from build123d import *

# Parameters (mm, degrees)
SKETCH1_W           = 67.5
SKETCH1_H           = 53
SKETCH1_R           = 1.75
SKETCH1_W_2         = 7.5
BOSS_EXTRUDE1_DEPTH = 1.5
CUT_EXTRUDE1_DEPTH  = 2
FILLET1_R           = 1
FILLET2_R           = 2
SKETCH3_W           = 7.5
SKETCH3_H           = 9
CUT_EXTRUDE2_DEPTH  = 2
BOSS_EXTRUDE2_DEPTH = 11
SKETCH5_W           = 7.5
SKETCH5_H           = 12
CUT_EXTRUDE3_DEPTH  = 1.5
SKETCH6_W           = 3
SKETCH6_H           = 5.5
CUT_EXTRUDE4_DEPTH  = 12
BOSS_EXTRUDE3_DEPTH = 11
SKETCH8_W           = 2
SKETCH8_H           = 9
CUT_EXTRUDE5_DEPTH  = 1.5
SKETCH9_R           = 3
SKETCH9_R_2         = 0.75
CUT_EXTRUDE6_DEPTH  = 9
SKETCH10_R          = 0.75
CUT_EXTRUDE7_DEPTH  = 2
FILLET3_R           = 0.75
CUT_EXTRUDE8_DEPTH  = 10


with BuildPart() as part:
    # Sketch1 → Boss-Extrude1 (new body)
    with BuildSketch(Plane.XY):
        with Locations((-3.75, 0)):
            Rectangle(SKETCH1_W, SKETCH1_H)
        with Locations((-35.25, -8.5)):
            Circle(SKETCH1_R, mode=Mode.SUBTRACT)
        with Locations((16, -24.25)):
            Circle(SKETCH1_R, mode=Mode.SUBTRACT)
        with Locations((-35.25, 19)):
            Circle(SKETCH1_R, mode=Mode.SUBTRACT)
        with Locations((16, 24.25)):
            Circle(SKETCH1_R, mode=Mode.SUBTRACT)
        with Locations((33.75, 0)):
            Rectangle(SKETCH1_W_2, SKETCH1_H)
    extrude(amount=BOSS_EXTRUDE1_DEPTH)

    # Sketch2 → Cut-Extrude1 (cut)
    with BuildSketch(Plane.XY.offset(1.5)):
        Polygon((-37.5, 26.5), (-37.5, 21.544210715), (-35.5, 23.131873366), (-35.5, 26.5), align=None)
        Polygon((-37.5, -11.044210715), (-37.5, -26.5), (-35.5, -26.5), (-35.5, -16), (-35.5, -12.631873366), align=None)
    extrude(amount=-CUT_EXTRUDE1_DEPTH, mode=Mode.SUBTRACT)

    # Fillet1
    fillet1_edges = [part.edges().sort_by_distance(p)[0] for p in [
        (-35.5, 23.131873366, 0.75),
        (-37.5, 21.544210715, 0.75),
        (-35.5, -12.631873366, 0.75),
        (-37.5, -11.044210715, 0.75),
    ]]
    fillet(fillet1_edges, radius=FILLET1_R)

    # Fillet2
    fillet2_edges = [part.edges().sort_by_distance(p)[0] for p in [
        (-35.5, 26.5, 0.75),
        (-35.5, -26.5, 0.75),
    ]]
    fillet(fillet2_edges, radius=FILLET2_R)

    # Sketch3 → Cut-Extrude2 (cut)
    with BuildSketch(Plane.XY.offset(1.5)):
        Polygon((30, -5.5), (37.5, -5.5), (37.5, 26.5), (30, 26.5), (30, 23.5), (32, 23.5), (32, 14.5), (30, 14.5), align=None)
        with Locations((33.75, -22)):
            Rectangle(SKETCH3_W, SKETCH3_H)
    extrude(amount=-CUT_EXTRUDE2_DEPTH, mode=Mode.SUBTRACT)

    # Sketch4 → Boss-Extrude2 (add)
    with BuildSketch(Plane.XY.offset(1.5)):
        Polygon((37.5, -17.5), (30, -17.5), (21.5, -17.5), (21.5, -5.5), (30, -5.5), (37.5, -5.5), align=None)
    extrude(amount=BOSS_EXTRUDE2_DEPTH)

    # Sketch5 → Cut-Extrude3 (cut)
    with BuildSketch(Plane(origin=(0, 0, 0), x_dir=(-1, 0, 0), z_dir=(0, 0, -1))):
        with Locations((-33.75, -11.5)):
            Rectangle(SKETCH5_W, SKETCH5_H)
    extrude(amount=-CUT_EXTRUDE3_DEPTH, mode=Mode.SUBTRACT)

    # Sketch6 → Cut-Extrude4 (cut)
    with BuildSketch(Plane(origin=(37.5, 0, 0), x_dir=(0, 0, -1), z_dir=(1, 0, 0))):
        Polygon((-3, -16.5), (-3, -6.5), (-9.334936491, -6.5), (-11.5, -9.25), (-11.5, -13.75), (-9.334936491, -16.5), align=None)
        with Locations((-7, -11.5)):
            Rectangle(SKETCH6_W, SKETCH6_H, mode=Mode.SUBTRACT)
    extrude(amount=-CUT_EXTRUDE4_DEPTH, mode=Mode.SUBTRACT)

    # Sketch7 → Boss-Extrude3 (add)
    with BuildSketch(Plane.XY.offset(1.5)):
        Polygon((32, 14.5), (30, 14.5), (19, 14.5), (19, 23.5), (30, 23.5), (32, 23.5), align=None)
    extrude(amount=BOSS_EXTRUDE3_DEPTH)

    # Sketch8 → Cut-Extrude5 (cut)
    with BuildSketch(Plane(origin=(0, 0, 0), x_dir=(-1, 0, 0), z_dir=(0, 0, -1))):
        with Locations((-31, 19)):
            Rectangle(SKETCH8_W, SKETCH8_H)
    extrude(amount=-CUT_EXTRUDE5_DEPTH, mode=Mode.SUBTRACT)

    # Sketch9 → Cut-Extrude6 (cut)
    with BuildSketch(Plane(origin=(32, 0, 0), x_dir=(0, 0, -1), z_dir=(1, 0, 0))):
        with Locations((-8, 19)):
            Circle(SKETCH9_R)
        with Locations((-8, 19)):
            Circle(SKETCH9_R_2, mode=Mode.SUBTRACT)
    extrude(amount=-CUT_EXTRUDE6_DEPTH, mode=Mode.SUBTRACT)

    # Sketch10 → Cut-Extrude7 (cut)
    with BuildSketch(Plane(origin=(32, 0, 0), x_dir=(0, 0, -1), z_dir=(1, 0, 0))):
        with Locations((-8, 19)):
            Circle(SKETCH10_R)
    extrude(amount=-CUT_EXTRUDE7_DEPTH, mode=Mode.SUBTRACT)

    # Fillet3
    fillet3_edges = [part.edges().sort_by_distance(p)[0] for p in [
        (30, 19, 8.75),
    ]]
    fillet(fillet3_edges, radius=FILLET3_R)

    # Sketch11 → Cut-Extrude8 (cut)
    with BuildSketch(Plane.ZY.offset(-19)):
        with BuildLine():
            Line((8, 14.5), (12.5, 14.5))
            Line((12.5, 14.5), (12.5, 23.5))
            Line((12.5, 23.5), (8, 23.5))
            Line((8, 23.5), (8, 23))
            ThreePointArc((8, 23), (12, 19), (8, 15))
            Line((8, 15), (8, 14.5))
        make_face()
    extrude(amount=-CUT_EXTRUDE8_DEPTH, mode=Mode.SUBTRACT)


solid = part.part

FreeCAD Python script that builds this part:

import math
import FreeCAD as App
import Part
import Sketcher
from FreeCAD import Vector
Q = App.Units.Quantity


def edges_at(feature, points):
    """Names of the edges that pass closest to the given points."""
    edges = feature.Shape.Edges
    near = lambda p: min(range(len(edges)), key=lambda i: edges[i].distToShape(Part.Vertex(*p))[0])
    return sorted({f"Edge{near(p) + 1}" for p in points})

doc = App.newDocument("Part")
body = doc.addObject("PartDesign::Body", "Body")

# Sketch on XY plane
sketch1 = doc.addObject("Sketcher::SketchObject", "Sketch")
body.addObject(sketch1)
sketch1.AttachmentSupport = (doc.XY_Plane, [""])
sketch1.MapMode = "FlatFace"
sketch1.addGeometry([
    Part.LineSegment(Vector(-37.5, 26.5, 0), Vector(-37.5, -26.5, 0)),  # 0
    Part.LineSegment(Vector(-37.5, -26.5, 0), Vector(37.5, -26.5, 0)),  # 1
    Part.LineSegment(Vector(37.5, -26.5, 0), Vector(37.5, 26.5, 0)),  # 2
    Part.LineSegment(Vector(37.5, 26.5, 0), Vector(-37.5, 26.5, 0)),  # 3
    Part.Circle(Vector(-35.25, -8.5, 0), Vector(0, 0, 1), 1.75),  # 4
    Part.Circle(Vector(16, -24.25, 0), Vector(0, 0, 1), 1.75),  # 5
    Part.Circle(Vector(-35.25, 19, 0), Vector(0, 0, 1), 1.75),  # 6
    Part.Circle(Vector(16, 24.25, 0), Vector(0, 0, 1), 1.75),  # 7
], False)
sketch1.addConstraint([
    Sketcher.Constraint("Coincident", 0, 2, 1, 1),
    Sketcher.Constraint("Coincident", 1, 2, 2, 1),
    Sketcher.Constraint("Coincident", 2, 2, 3, 1),
    Sketcher.Constraint("Coincident", 3, 2, 0, 1),
    Sketcher.Constraint("Vertical", 0),
    Sketcher.Constraint("Horizontal", 1),
    Sketcher.Constraint("Vertical", 2),
    Sketcher.Constraint("Horizontal", 3),
    Sketcher.Constraint("Equal", 4, 5),
    Sketcher.Constraint("Equal", 5, 6),
    Sketcher.Constraint("Equal", 6, 7),
    Sketcher.Constraint("Symmetric", 0, 2, 2, 2, -1, 1),
    Sketcher.Constraint("Symmetric", 5, 3, 7, 3, -1),
    Sketcher.Constraint("Vertical", 4, 3, 6, 3),
    Sketcher.Constraint("Diameter", 4, Q("3.5 mm")),
    Sketcher.Constraint("DistanceX", 1, 1, 1, 2, Q("75 mm")),
    Sketcher.Constraint("DistanceY", 0, 2, 0, 1, Q("53 mm")),
    Sketcher.Constraint("DistanceX", -1, 1, 5, 3, Q("16 mm")),
    Sketcher.Constraint("DistanceY", -1, 1, 6, 3, Q("19 mm")),
    Sketcher.Constraint("DistanceY", 0, 2, 4, 3, Q("18 mm")),
    Sketcher.Constraint("DistanceY", 5, 3, 7, 3, Q("48.5 mm")),
    Sketcher.Constraint("DistanceX", 4, 3, -1, 1, Q("35.25 mm")),
])
pad1 = doc.addObject("PartDesign::Pad", "Pad")
body.addObject(pad1)
pad1.Profile = sketch1
pad1.Length = 1.5

# Sketch on XY plane
sketch2 = doc.addObject("Sketcher::SketchObject", "Sketch001")
body.addObject(sketch2)
sketch2.AttachmentSupport = (doc.XY_Plane, [""])
sketch2.MapMode = "FlatFace"
sketch2.AttachmentOffset = App.Placement(Vector(0, 0, 1.5), App.Rotation())
sketch2.addGeometry([
    Part.LineSegment(Vector(-37.5, 26.5, 0), Vector(-37.5, 21.544211, 0)),  # 0
    Part.LineSegment(Vector(-37.5, 21.544211, 0), Vector(-35.5, 23.131873, 0)),  # 1
    Part.LineSegment(Vector(-35.5, 23.131873, 0), Vector(-35.5, 26.5, 0)),  # 2
    Part.LineSegment(Vector(-35.5, 26.5, 0), Vector(-37.5, 26.5, 0)),  # 3
    Part.LineSegment(Vector(-37.5, -11.044211, 0), Vector(-37.5, -26.5, 0)),  # 4
    Part.LineSegment(Vector(-37.5, -26.5, 0), Vector(-35.5, -26.5, 0)),  # 5
    Part.LineSegment(Vector(-35.5, -26.5, 0), Vector(-35.5, -12.631873, 0)),  # 6
    Part.LineSegment(Vector(-35.5, -12.631873, 0), Vector(-37.5, -11.044211, 0)),  # 7
], False)
sketch2.addConstraint([
    Sketcher.Constraint("Coincident", 0, 2, 1, 1),
    Sketcher.Constraint("Coincident", 1, 2, 2, 1),
    Sketcher.Constraint("Coincident", 2, 2, 3, 1),
    Sketcher.Constraint("Coincident", 3, 2, 0, 1),
    Sketcher.Constraint("Coincident", 4, 2, 5, 1),
    Sketcher.Constraint("Coincident", 5, 2, 6, 1),
    Sketcher.Constraint("Coincident", 6, 2, 7, 1),
    Sketcher.Constraint("Coincident", 7, 2, 4, 1),
    Sketcher.Constraint("Vertical", 0),
    Sketcher.Constraint("Vertical", 2),
    Sketcher.Constraint("Horizontal", 3),
    Sketcher.Constraint("Vertical", 4),
    Sketcher.Constraint("Horizontal", 5),
    Sketcher.Constraint("Vertical", 6),
    Sketcher.Constraint("Symmetric", 3, 2, 4, 2, -1),
    Sketcher.Constraint("Vertical", 2, 2, 5, 2),
    Sketcher.Constraint("Equal", 1, 7),
    Sketcher.Constraint("DistanceX", 3, 2, 3, 1, Q("2 mm")),
    Sketcher.Constraint("DistanceY", 4, 2, 3, 2, Q("53 mm")),
    Sketcher.Constraint("DistanceX", 0, 2, -1, 1, Q("37.5 mm")),
    Sketcher.Constraint("DistanceY", 0, 2, 0, 1, Q("4.955789 mm")),
    Sketcher.Constraint("DistanceY", 4, 2, 4, 1, Q("15.455789 mm")),
    Sketcher.Constraint("Distance", 1, Q("2.553561 mm")),
])
pocket1 = doc.addObject("PartDesign::Pocket", "Pocket")
body.addObject(pocket1)
pocket1.Profile = sketch2
pocket1.Length = 2
doc.recompute()

fillet = doc.addObject("PartDesign::Fillet", "Fillet")
body.addObject(fillet)
fillet.Base = (pocket1, edges_at(pocket1, [
    (-35.5, 23.132, 0.75),
    (-37.5, 21.544, 0.75),
    (-35.5, -12.632, 0.75),
    (-37.5, -11.044, 0.75),
]))
fillet.Radius = 1
doc.recompute()

fillet2 = doc.addObject("PartDesign::Fillet", "Fillet001")
body.addObject(fillet2)
fillet2.Base = (fillet, edges_at(fillet, [(-35.5, 26.5, 0.75), (-35.5, -26.5, 0.75)]))
fillet2.Radius = 2

# Sketch on XY plane
sketch3 = doc.addObject("Sketcher::SketchObject", "Sketch002")
body.addObject(sketch3)
sketch3.AttachmentSupport = (doc.XY_Plane, [""])
sketch3.MapMode = "FlatFace"
sketch3.AttachmentOffset = App.Placement(Vector(0, 0, 1.5), App.Rotation())
sketch3.addGeometry([
    Part.LineSegment(Vector(30, -5.5, 0), Vector(37.5, -5.5, 0)),  # 0
    Part.LineSegment(Vector(37.5, -5.5, 0), Vector(37.5, 26.5, 0)),  # 1
    Part.LineSegment(Vector(37.5, 26.5, 0), Vector(30, 26.5, 0)),  # 2
    Part.LineSegment(Vector(30, 26.5, 0), Vector(30, 23.5, 0)),  # 3
    Part.LineSegment(Vector(30, 23.5, 0), Vector(32, 23.5, 0)),  # 4
    Part.LineSegment(Vector(32, 23.5, 0), Vector(32, 14.5, 0)),  # 5
    Part.LineSegment(Vector(32, 14.5, 0), Vector(30, 14.5, 0)),  # 6
    Part.LineSegment(Vector(30, 14.5, 0), Vector(30, -5.5, 0)),  # 7
    Part.LineSegment(Vector(30, -17.5, 0), Vector(30, -26.5, 0)),  # 8
    Part.LineSegment(Vector(30, -26.5, 0), Vector(37.5, -26.5, 0)),  # 9
    Part.LineSegment(Vector(37.5, -26.5, 0), Vector(37.5, -17.5, 0)),  # 10
    Part.LineSegment(Vector(37.5, -17.5, 0), Vector(30, -17.5, 0)),  # 11
], False)
sketch3.addConstraint([
    Sketcher.Constraint("Coincident", 0, 2, 1, 1),
    Sketcher.Constraint("Coincident", 1, 2, 2, 1),
    Sketcher.Constraint("Coincident", 2, 2, 3, 1),
    Sketcher.Constraint("Coincident", 3, 2, 4, 1),
    Sketcher.Constraint("Coincident", 4, 2, 5, 1),
    Sketcher.Constraint("Coincident", 5, 2, 6, 1),
    Sketcher.Constraint("Coincident", 6, 2, 7, 1),
    Sketcher.Constraint("Coincident", 7, 2, 0, 1),
    Sketcher.Constraint("Coincident", 8, 2, 9, 1),
    Sketcher.Constraint("Coincident", 9, 2, 10, 1),
    Sketcher.Constraint("Coincident", 10, 2, 11, 1),
    Sketcher.Constraint("Coincident", 11, 2, 8, 1),
    Sketcher.Constraint("Horizontal", 0),
    Sketcher.Constraint("Vertical", 1),
    Sketcher.Constraint("Horizontal", 2),
    Sketcher.Constraint("Vertical", 3),
    Sketcher.Constraint("Horizontal", 4),
    Sketcher.Constraint("Vertical", 5),
    Sketcher.Constraint("Horizontal", 6),
    Sketcher.Constraint("Vertical", 7),
    Sketcher.Constraint("Vertical", 8),
    Sketcher.Constraint("Horizontal", 9),
    Sketcher.Constraint("Vertical", 10),
    Sketcher.Constraint("Horizontal", 11),
    Sketcher.Constraint("Symmetric", 2, 2, 8, 2, -1),
    Sketcher.Constraint("Vertical", 3, 2, 6, 2),
    Sketcher.Constraint("Vertical", 1, 2, 9, 2),
    Sketcher.Constraint("Equal", 5, 8),
    Sketcher.Constraint("DistanceX", 4, 1, 4, 2, Q("2 mm")),
    Sketcher.Constraint("DistanceY", 1, 1, 1, 2, Q("32 mm")),
    Sketcher.Constraint("DistanceY", 3, 2, 3, 1, Q("3 mm")),
    Sketcher.Constraint("DistanceY", 5, 2, 5, 1, Q("9 mm")),
    Sketcher.Constraint("DistanceX", 0, 1, 0, 2, Q("7.5 mm")),
    Sketcher.Constraint("DistanceX", -1, 1, 2, 2, Q("30 mm")),
    Sketcher.Constraint("DistanceY", 8, 2, 7, 2, Q("21 mm")),
])
pocket2 = doc.addObject("PartDesign::Pocket", "Pocket001")
body.addObject(pocket2)
pocket2.Profile = sketch3
pocket2.Length = 2

# Sketch on XY plane
sketch4 = doc.addObject("Sketcher::SketchObject", "Sketch003")
body.addObject(sketch4)
sketch4.AttachmentSupport = (doc.XY_Plane, [""])
sketch4.MapMode = "FlatFace"
sketch4.AttachmentOffset = App.Placement(Vector(0, 0, 1.5), App.Rotation())
sketch4.addGeometry([
    Part.LineSegment(Vector(21.5, -17.5, 0), Vector(37.5, -17.5, 0)),
    Part.LineSegment(Vector(37.5, -17.5, 0), Vector(37.5, -5.5, 0)),
    Part.LineSegment(Vector(37.5, -5.5, 0), Vector(21.5, -5.5, 0)),
    Part.LineSegment(Vector(21.5, -5.5, 0), Vector(21.5, -17.5, 0)),
], False)
sketch4.addConstraint([
    Sketcher.Constraint("Coincident", 0, 2, 1, 1),
    Sketcher.Constraint("Coincident", 1, 2, 2, 1),
    Sketcher.Constraint("Coincident", 2, 2, 3, 1),
    Sketcher.Constraint("Coincident", 3, 2, 0, 1),
    Sketcher.Constraint("Horizontal", 0),
    Sketcher.Constraint("Vertical", 1),
    Sketcher.Constraint("Horizontal", 2),
    Sketcher.Constraint("Vertical", 3),
    Sketcher.Constraint("DistanceX", 0, 1, 0, 2, Q("16 mm")),
    Sketcher.Constraint("DistanceY", 1, 1, 1, 2, Q("12 mm")),
    Sketcher.Constraint("DistanceX", -1, 1, 0, 2, Q("37.5 mm")),
    Sketcher.Constraint("DistanceY", 0, 2, -1, 1, Q("17.5 mm")),
])
pad2 = doc.addObject("PartDesign::Pad", "Pad001")
body.addObject(pad2)
pad2.Profile = sketch4
pad2.Length = 11

# Sketch on XY plane
sketch5 = doc.addObject("Sketcher::SketchObject", "Sketch004")
body.addObject(sketch5)
sketch5.AttachmentSupport = (doc.XY_Plane, [""])
sketch5.MapMode = "FlatFace"
sketch5.addGeometry([
    Part.LineSegment(Vector(37.5, -5.5, 0), Vector(37.5, -17.5, 0)),
    Part.LineSegment(Vector(37.5, -17.5, 0), Vector(30, -17.5, 0)),
    Part.LineSegment(Vector(30, -17.5, 0), Vector(30, -5.5, 0)),
    Part.LineSegment(Vector(30, -5.5, 0), Vector(37.5, -5.5, 0)),
], False)
sketch5.addConstraint([
    Sketcher.Constraint("Coincident", 0, 2, 1, 1),
    Sketcher.Constraint("Coincident", 1, 2, 2, 1),
    Sketcher.Constraint("Coincident", 2, 2, 3, 1),
    Sketcher.Constraint("Coincident", 3, 2, 0, 1),
    Sketcher.Constraint("Vertical", 0),
    Sketcher.Constraint("Horizontal", 1),
    Sketcher.Constraint("Vertical", 2),
    Sketcher.Constraint("Horizontal", 3),
    Sketcher.Constraint("DistanceY", 0, 2, 0, 1, Q("12 mm")),
    Sketcher.Constraint("DistanceX", 1, 2, 1, 1, Q("7.5 mm")),
    Sketcher.Constraint("DistanceX", -1, 1, 1, 2, Q("30 mm")),
    Sketcher.Constraint("DistanceY", 0, 2, -1, 1, Q("17.5 mm")),
])
pocket3 = doc.addObject("PartDesign::Pocket", "Pocket002")
body.addObject(pocket3)
pocket3.Profile = sketch5
pocket3.Length = 1.5
pocket3.Reversed = True

# Sketch on YZ plane
sketch6 = doc.addObject("Sketcher::SketchObject", "Sketch005")
body.addObject(sketch6)
sketch6.AttachmentSupport = (doc.YZ_Plane, [""])
sketch6.MapMode = "FlatFace"
sketch6.AttachmentOffset = App.Placement(Vector(0, 0, 37.5), App.Rotation())
sketch6.addGeometry([
    Part.LineSegment(Vector(-16.5, 3, 0), Vector(-6.5, 3, 0)),  # 0
    Part.LineSegment(Vector(-6.5, 3, 0), Vector(-6.5, 9.334936, 0)),  # 1
    Part.LineSegment(Vector(-6.5, 9.334936, 0), Vector(-9.25, 11.5, 0)),  # 2
    Part.LineSegment(Vector(-9.25, 11.5, 0), Vector(-13.75, 11.5, 0)),  # 3
    Part.LineSegment(Vector(-13.75, 11.5, 0), Vector(-16.5, 9.334936, 0)),  # 4
    Part.LineSegment(Vector(-16.5, 9.334936, 0), Vector(-16.5, 3, 0)),  # 5
    Part.LineSegment(Vector(-14.25, 5.5, 0), Vector(-14.25, 8.5, 0)),  # 6
    Part.LineSegment(Vector(-14.25, 8.5, 0), Vector(-8.75, 8.5, 0)),  # 7
    Part.LineSegment(Vector(-8.75, 8.5, 0), Vector(-8.75, 5.5, 0)),  # 8
    Part.LineSegment(Vector(-8.75, 5.5, 0), Vector(-14.25, 5.5, 0)),  # 9
], False)
sketch6.addConstraint([
    Sketcher.Constraint("Coincident", 0, 2, 1, 1),
    Sketcher.Constraint("Coincident", 1, 2, 2, 1),
    Sketcher.Constraint("Coincident", 2, 2, 3, 1),
    Sketcher.Constraint("Coincident", 3, 2, 4, 1),
    Sketcher.Constraint("Coincident", 4, 2, 5, 1),
    Sketcher.Constraint("Coincident", 5, 2, 0, 1),
    Sketcher.Constraint("Coincident", 6, 2, 7, 1),
    Sketcher.Constraint("Coincident", 7, 2, 8, 1),
    Sketcher.Constraint("Coincident", 8, 2, 9, 1),
    Sketcher.Constraint("Coincident", 9, 2, 6, 1),
    Sketcher.Constraint("Horizontal", 0),
    Sketcher.Constraint("Vertical", 1),
    Sketcher.Constraint("Horizontal", 3),
    Sketcher.Constraint("Vertical", 5),
    Sketcher.Constraint("Vertical", 6),
    Sketcher.Constraint("Horizontal", 7),
    Sketcher.Constraint("Vertical", 8),
    Sketcher.Constraint("Horizontal", 9),
    Sketcher.Constraint("Horizontal", 1, 2, 4, 2),
    Sketcher.Constraint("Equal", 2, 4),
    Sketcher.Constraint("DistanceX", 0, 1, 0, 2, Q("10 mm")),
    Sketcher.Constraint("DistanceY", 6, 1, 6, 2, Q("3 mm")),
    Sketcher.Constraint("DistanceX", 3, 2, 3, 1, Q("4.5 mm")),
    Sketcher.Constraint("DistanceX", 7, 1, 7, 2, Q("5.5 mm")),
    Sketcher.Constraint("DistanceY", -1, 1, 0, 2, Q("3 mm")),
    Sketcher.Constraint("DistanceY", 6, 2, 3, 2, Q("3 mm")),
    Sketcher.Constraint("DistanceX", 6, 2, 2, 2, Q("5 mm")),
    Sketcher.Constraint("Distance", 2, Q("3.5 mm")),
    Sketcher.Constraint("DistanceX", 0, 2, -1, 1, Q("6.5 mm")),
    Sketcher.Constraint("DistanceY", -1, 1, 2, 2, Q("11.5 mm")),
])
pocket4 = doc.addObject("PartDesign::Pocket", "Pocket003")
body.addObject(pocket4)
pocket4.Profile = sketch6
pocket4.Length = 12

# Sketch on XY plane
sketch7 = doc.addObject("Sketcher::SketchObject", "Sketch006")
body.addObject(sketch7)
sketch7.AttachmentSupport = (doc.XY_Plane, [""])
sketch7.MapMode = "FlatFace"
sketch7.AttachmentOffset = App.Placement(Vector(0, 0, 1.5), App.Rotation())
sketch7.addGeometry([
    Part.LineSegment(Vector(19, 14.5, 0), Vector(32, 14.5, 0)),
    Part.LineSegment(Vector(32, 14.5, 0), Vector(32, 23.5, 0)),
    Part.LineSegment(Vector(32, 23.5, 0), Vector(19, 23.5, 0)),
    Part.LineSegment(Vector(19, 23.5, 0), Vector(19, 14.5, 0)),
], False)
sketch7.addConstraint([
    Sketcher.Constraint("Coincident", 0, 2, 1, 1),
    Sketcher.Constraint("Coincident", 1, 2, 2, 1),
    Sketcher.Constraint("Coincident", 2, 2, 3, 1),
    Sketcher.Constraint("Coincident", 3, 2, 0, 1),
    Sketcher.Constraint("Horizontal", 0),
    Sketcher.Constraint("Vertical", 1),
    Sketcher.Constraint("Horizontal", 2),
    Sketcher.Constraint("Vertical", 3),
    Sketcher.Constraint("DistanceX", 0, 1, 0, 2, Q("13 mm")),
    Sketcher.Constraint("DistanceY", 1, 1, 1, 2, Q("9 mm")),
    Sketcher.Constraint("DistanceX", -1, 1, 0, 2, Q("32 mm")),
    Sketcher.Constraint("DistanceY", -1, 1, 0, 2, Q("14.5 mm")),
])
pad3 = doc.addObject("PartDesign::Pad", "Pad002")
body.addObject(pad3)
pad3.Profile = sketch7
pad3.Length = 11

# Sketch on XY plane
sketch8 = doc.addObject("Sketcher::SketchObject", "Sketch007")
body.addObject(sketch8)
sketch8.AttachmentSupport = (doc.XY_Plane, [""])
sketch8.MapMode = "FlatFace"
sketch8.addGeometry([
    Part.LineSegment(Vector(32, 23.5, 0), Vector(32, 14.5, 0)),
    Part.LineSegment(Vector(32, 14.5, 0), Vector(30, 14.5, 0)),
    Part.LineSegment(Vector(30, 14.5, 0), Vector(30, 23.5, 0)),
    Part.LineSegment(Vector(30, 23.5, 0), Vector(32, 23.5, 0)),
], False)
sketch8.addConstraint([
    Sketcher.Constraint("Coincident", 0, 2, 1, 1),
    Sketcher.Constraint("Coincident", 1, 2, 2, 1),
    Sketcher.Constraint("Coincident", 2, 2, 3, 1),
    Sketcher.Constraint("Coincident", 3, 2, 0, 1),
    Sketcher.Constraint("Vertical", 0),
    Sketcher.Constraint("Horizontal", 1),
    Sketcher.Constraint("Vertical", 2),
    Sketcher.Constraint("Horizontal", 3),
    Sketcher.Constraint("DistanceX", 1, 2, 1, 1, Q("2 mm")),
    Sketcher.Constraint("DistanceY", 0, 2, 0, 1, Q("9 mm")),
    Sketcher.Constraint("DistanceX", -1, 1, 0, 2, Q("32 mm")),
    Sketcher.Constraint("DistanceY", -1, 1, 0, 2, Q("14.5 mm")),
])
pocket5 = doc.addObject("PartDesign::Pocket", "Pocket004")
body.addObject(pocket5)
pocket5.Profile = sketch8
pocket5.Length = 1.5
pocket5.Reversed = True

# Sketch on YZ plane
sketch9 = doc.addObject("Sketcher::SketchObject", "Sketch008")
body.addObject(sketch9)
sketch9.AttachmentSupport = (doc.YZ_Plane, [""])
sketch9.MapMode = "FlatFace"
sketch9.AttachmentOffset = App.Placement(Vector(0, 0, 32), App.Rotation())
sketch9.addGeometry([
    Part.Circle(Vector(19, 8, 0), Vector(0, 0, 1), 3),
    Part.Circle(Vector(19, 8, 0), Vector(0, 0, 1), 0.75),
], False)
sketch9.addConstraint([
    Sketcher.Constraint("Coincident", 1, 3, 0, 3),
    Sketcher.Constraint("Diameter", 0, Q("6 mm")),
    Sketcher.Constraint("Diameter", 1, Q("1.5 mm")),
    Sketcher.Constraint("DistanceX", -1, 1, 0, 3, Q("19 mm")),
    Sketcher.Constraint("DistanceY", -1, 1, 0, 3, Q("8 mm")),
])
pocket6 = doc.addObject("PartDesign::Pocket", "Pocket005")
body.addObject(pocket6)
pocket6.Profile = sketch9
pocket6.Length = 9

# Sketch on YZ plane
sketch10 = doc.addObject("Sketcher::SketchObject", "Sketch009")
body.addObject(sketch10)
sketch10.AttachmentSupport = (doc.YZ_Plane, [""])
sketch10.MapMode = "FlatFace"
sketch10.AttachmentOffset = App.Placement(Vector(0, 0, 32), App.Rotation())
sketch10.addGeometry(Part.Circle(Vector(19, 8, 0), Vector(0, 0, 1), 0.75), False)
sketch10.addConstraint([
    Sketcher.Constraint("Diameter", 0, Q("1.5 mm")),
    Sketcher.Constraint("DistanceX", -1, 1, 0, 3, Q("19 mm")),
    Sketcher.Constraint("DistanceY", -1, 1, 0, 3, Q("8 mm")),
])
pocket7 = doc.addObject("PartDesign::Pocket", "Pocket006")
body.addObject(pocket7)
pocket7.Profile = sketch10
pocket7.Length = 2
doc.recompute()

fillet3 = doc.addObject("PartDesign::Fillet", "Fillet002")
body.addObject(fillet3)
fillet3.Base = (pocket7, edges_at(pocket7, [(30, 19, 8.75)]))
fillet3.Radius = 0.75

# Sketch on YZ plane
sketch11 = doc.addObject("Sketcher::SketchObject", "Sketch010")
body.addObject(sketch11)
sketch11.AttachmentSupport = (doc.YZ_Plane, [""])
sketch11.MapMode = "FlatFace"
sketch11.AttachmentOffset = App.Placement(Vector(0, 0, 19), App.Rotation())
sketch11.addGeometry([
    Part.LineSegment(Vector(14.5, 8, 0), Vector(14.5, 12.5, 0)),  # 0
    Part.LineSegment(Vector(14.5, 12.5, 0), Vector(23.5, 12.5, 0)),  # 1
    Part.LineSegment(Vector(23.5, 12.5, 0), Vector(23.5, 8, 0)),  # 2
    Part.LineSegment(Vector(23.5, 8, 0), Vector(23, 8, 0)),  # 3
    Part.ArcOfCircle(Part.Circle(Vector(19, 8, 0), Vector(0, 0, 1), 4), math.radians(0), math.radians(180)),  # 4
    Part.LineSegment(Vector(15, 8, 0), Vector(14.5, 8, 0)),  # 5
], False)
sketch11.addConstraint([
    Sketcher.Constraint("Coincident", 0, 2, 1, 1),
    Sketcher.Constraint("Coincident", 1, 2, 2, 1),
    Sketcher.Constraint("Coincident", 2, 2, 3, 1),
    Sketcher.Constraint("Coincident", 3, 2, 4, 1),
    Sketcher.Constraint("Coincident", 4, 2, 5, 1),
    Sketcher.Constraint("Coincident", 5, 2, 0, 1),
    Sketcher.Constraint("Vertical", 0),
    Sketcher.Constraint("Horizontal", 1),
    Sketcher.Constraint("Vertical", 2),
    Sketcher.Constraint("Horizontal", 3),
    Sketcher.Constraint("Horizontal", 5),
    Sketcher.Constraint("Horizontal", 4, 3, 2, 2),
    Sketcher.Constraint("Horizontal", 3, 2, 4, 2),
    Sketcher.Constraint("Equal", 3, 5),
    Sketcher.Constraint("Radius", 4, Q("4 mm")),
    Sketcher.Constraint("DistanceX", 1, 1, 1, 2, Q("9 mm")),
    Sketcher.Constraint("DistanceY", 0, 1, 0, 2, Q("4.5 mm")),
    Sketcher.Constraint("DistanceX", -1, 1, 4, 3, Q("19 mm")),
    Sketcher.Constraint("DistanceY", -1, 1, 4, 3, Q("8 mm")),
])
pocket8 = doc.addObject("PartDesign::Pocket", "Pocket007")
body.addObject(pocket8)
pocket8.Profile = sketch11
pocket8.Length = 10
pocket8.Reversed = True

doc.recompute()
